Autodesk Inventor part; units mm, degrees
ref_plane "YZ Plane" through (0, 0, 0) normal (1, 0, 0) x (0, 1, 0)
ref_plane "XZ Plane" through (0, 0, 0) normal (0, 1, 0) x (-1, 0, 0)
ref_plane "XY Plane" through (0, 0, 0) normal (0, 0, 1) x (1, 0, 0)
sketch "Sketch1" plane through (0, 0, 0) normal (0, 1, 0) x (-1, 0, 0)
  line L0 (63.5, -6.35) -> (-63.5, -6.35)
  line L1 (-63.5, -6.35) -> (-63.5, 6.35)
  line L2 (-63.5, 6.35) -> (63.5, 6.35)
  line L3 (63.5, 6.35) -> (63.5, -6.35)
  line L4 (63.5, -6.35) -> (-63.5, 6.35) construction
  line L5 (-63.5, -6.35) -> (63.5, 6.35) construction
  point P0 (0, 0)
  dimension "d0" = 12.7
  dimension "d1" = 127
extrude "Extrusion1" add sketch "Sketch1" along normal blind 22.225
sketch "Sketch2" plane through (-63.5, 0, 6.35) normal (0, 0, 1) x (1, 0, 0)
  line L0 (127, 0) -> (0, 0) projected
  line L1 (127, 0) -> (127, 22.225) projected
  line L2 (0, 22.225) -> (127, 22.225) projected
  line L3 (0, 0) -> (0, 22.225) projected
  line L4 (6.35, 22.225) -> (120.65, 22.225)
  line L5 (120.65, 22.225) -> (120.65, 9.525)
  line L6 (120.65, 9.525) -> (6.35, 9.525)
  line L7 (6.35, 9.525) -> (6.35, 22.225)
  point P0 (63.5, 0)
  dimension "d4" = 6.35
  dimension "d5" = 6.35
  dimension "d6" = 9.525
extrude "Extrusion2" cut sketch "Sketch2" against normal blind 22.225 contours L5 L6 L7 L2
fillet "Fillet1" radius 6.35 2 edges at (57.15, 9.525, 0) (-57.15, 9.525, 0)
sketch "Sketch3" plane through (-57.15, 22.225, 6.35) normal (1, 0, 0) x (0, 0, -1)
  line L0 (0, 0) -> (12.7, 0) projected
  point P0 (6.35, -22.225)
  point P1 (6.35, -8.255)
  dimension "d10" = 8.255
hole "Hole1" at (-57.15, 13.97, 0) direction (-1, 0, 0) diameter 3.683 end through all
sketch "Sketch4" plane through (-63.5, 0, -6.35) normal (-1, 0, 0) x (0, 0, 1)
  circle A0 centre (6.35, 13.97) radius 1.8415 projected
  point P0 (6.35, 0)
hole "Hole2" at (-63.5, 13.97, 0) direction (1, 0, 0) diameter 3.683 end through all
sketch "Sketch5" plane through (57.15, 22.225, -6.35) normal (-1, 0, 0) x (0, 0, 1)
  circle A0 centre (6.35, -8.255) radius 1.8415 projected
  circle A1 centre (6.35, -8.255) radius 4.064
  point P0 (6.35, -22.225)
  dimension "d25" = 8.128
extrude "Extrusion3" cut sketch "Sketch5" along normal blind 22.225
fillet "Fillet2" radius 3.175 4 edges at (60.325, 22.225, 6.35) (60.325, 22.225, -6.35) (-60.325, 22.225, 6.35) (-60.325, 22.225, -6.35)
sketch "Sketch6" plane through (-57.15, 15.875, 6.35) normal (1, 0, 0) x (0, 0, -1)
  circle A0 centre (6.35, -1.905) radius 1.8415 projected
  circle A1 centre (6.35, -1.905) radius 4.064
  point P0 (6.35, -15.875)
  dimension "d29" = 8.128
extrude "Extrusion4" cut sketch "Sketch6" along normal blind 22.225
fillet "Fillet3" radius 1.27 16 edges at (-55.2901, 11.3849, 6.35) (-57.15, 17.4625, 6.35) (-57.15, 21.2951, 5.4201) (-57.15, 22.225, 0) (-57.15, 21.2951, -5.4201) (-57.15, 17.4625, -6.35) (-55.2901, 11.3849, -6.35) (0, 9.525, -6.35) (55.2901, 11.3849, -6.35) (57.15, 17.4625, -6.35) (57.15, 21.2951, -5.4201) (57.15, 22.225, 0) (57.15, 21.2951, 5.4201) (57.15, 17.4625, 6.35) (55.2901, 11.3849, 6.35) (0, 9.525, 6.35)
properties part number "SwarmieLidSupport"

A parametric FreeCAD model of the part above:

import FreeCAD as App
import Part
import Sketcher

V = App.Vector
Q = App.Units.Quantity


def edges_at(feature, points):
    """Names of the edges that pass closest to the given points."""
    edges = feature.Shape.Edges
    near = lambda p: min(range(len(edges)), key=lambda i: edges[i].distToShape(Part.Vertex(*p))[0])
    return sorted({f"Edge{near(p) + 1}" for p in points})

doc = App.newDocument("Part")
params = doc.addObject("Spreadsheet::Sheet", "Params")
for row, (alias, value) in enumerate([
    ("sketch1_width", "5 in"),
    ("sketch1_height", "0.5 in"),
    ("pad1_length", "0.875 in"),
    ("sketch2_width", "4.5 in"),
    ("sketch2_height", "0.5 in"),
    ("pocket1_length", "0.875 in"),
    ("fillet_radius", "0.25 in"),
    ("sketch3_diameter", "0.145 in"),
    ("hole_diameter", "0.145 in"),
    ("sketch4_diameter", "0.145 in"),
    ("hole2_diameter", "0.145 in"),
    ("sketch5_diameter", "0.32 in"),
    ("sketch5_diameter2", "0.145 in"),
    ("pocket2_length", "0.875 in"),
    ("fillet2_radius", "0.125 in"),
    ("sketch6_diameter", "0.32 in"),
    ("sketch6_diameter2", "0.145 in"),
    ("pocket3_length", "0.875 in"),
    ("fillet3_radius", "0.05 in"),
], start=1):
    params.set(f"A{row}", alias)
    params.set(f"B{row}", "=" + value)
    params.setAlias(f"B{row}", alias)

body = doc.addObject("PartDesign::Body", "Body")

sketch1 = body.newObject("Sketcher::SketchObject", "Sketch")
sketch1.AttachmentSupport = (doc.getObject("XZ_Plane"), [""])
sketch1.MapMode = "FlatFace"
sketch1.addGeometry(Part.LineSegment(V(63.5, -6.35, 0), V(-63.5, -6.35, 0)), False)
sketch1.addGeometry(Part.LineSegment(V(-63.5, -6.35, 0), V(-63.5, 6.35, 0)), False)
sketch1.addGeometry(Part.LineSegment(V(-63.5, 6.35, 0), V(63.5, 6.35, 0)), False)
sketch1.addGeometry(Part.LineSegment(V(63.5, 6.35, 0), V(63.5, -6.35, 0)), False)
sketch1.addConstraint(Sketcher.Constraint("Coincident", 0, 2, 1, 1))
sketch1.addConstraint(Sketcher.Constraint("Coincident", 1, 2, 2, 1))
sketch1.addConstraint(Sketcher.Constraint("Coincident", 2, 2, 3, 1))
sketch1.addConstraint(Sketcher.Constraint("Coincident", 3, 2, 0, 1))
sketch1.addConstraint(Sketcher.Constraint("Horizontal", 0))
sketch1.addConstraint(Sketcher.Constraint("Vertical", 1))
sketch1.addConstraint(Sketcher.Constraint("Horizontal", 2))
sketch1.addConstraint(Sketcher.Constraint("Vertical", 3))
sketch1.addConstraint(Sketcher.Constraint("Symmetric", 0, 2, 2, 2, -1, 1))
sketch1.addConstraint(Sketcher.Constraint("DistanceX", 0, 2, 0, 1, Q("5 in")))
sketch1.addConstraint(Sketcher.Constraint("DistanceY", 1, 1, 1, 2, Q("0.5 in")))
sketch1.setExpression("Constraints[9]", "Params.sketch1_width")
sketch1.setExpression("Constraints[10]", "Params.sketch1_height")
pad1 = body.newObject("PartDesign::Pad", "Pad")
pad1.Profile = sketch1
pad1.setExpression("Length", "Params.pad1_length")
pad1.Reversed = True

sketch2 = body.newObject("Sketcher::SketchObject", "Sketch001")
sketch2.AttachmentSupport = (doc.getObject("XY_Plane"), [""])
sketch2.MapMode = "FlatFace"
sketch2.AttachmentOffset = App.Placement(V(0, 0, 0.25 * 25.4), App.Rotation())
sketch2.addGeometry(Part.LineSegment(V(57.15, 9.525, 0), V(57.15, 22.225, 0)), False)
sketch2.addGeometry(Part.LineSegment(V(57.15, 22.225, 0), V(-57.15, 22.225, 0)), False)
sketch2.addGeometry(Part.LineSegment(V(-57.15, 22.225, 0), V(-57.15, 9.525, 0)), False)
sketch2.addGeometry(Part.LineSegment(V(-57.15, 9.525, 0), V(57.15, 9.525, 0)), False)
sketch2.addConstraint(Sketcher.Constraint("Coincident", 0, 2, 1, 1))
sketch2.addConstraint(Sketcher.Constraint("Coincident", 1, 2, 2, 1))
sketch2.addConstraint(Sketcher.Constraint("Coincident", 2, 2, 3, 1))
sketch2.addConstraint(Sketcher.Constraint("Coincident", 3, 2, 0, 1))
sketch2.addConstraint(Sketcher.Constraint("Vertical", 0))
sketch2.addConstraint(Sketcher.Constraint("Horizontal", 1))
sketch2.addConstraint(Sketcher.Constraint("Vertical", 2))
sketch2.addConstraint(Sketcher.Constraint("Horizontal", 3))
sketch2.addConstraint(Sketcher.Constraint("DistanceX", 1, 2, 1, 1, Q("4.5 in")))
sketch2.addConstraint(Sketcher.Constraint("DistanceY", 0, 1, 0, 2, Q("0.5 in")))
sketch2.addConstraint(Sketcher.Constraint("DistanceY", -1, 1, 2, 2, Q("0.375 in")))
sketch2.addConstraint(Sketcher.Constraint("DistanceX", -1, 1, 0, 2, Q("2.25 in")))
sketch2.setExpression("Constraints[8]", "Params.sketch2_width")
sketch2.setExpression("Constraints[9]", "Params.sketch2_height")
pocket1 = body.newObject("PartDesign::Pocket", "Pocket")
pocket1.Profile = sketch2
pocket1.setExpression("Length", "Params.pocket1_length")
doc.recompute()

fillet = body.newObject("PartDesign::Fillet", "Fillet")
fillet.Base = (pocket1, edges_at(pocket1, [(57.15, 9.525, 0), (-57.15, 9.525, 0)]))
fillet.setExpression("Radius", "Params.fillet_radius")

sketch3 = body.newObject("Sketcher::SketchObject", "Sketch002")
sketch3.AttachmentSupport = (doc.getObject("YZ_Plane"), [""])
sketch3.MapMode = "FlatFace"
sketch3.AttachmentOffset = App.Placement(V(0, 0, -2.25 * 25.4), App.Rotation())
sketch3.addGeometry(Part.Circle(V(13.97, 0, 0), V(0, 0, 1), 1.8415), False)
sketch3.addConstraint(Sketcher.Constraint("PointOnObject", 0, 3, -1))
sketch3.addConstraint(Sketcher.Constraint("Diameter", 0, Q("0.145 in")))
sketch3.addConstraint(Sketcher.Constraint("DistanceX", -1, 1, 0, 3, Q("0.55 in")))
sketch3.setExpression("Constraints[1]", "Params.sketch3_diameter")
doc.recompute()
hole = body.newObject("PartDesign::Hole", "Hole")
hole.Profile = sketch3
hole.ThreadType = "None"
hole.setExpression("Diameter", "Params.hole_diameter")
hole.DepthType = "ThroughAll"

sketch4 = body.newObject("Sketcher::SketchObject", "Sketch003")
sketch4.AttachmentSupport = (doc.getObject("YZ_Plane"), [""])
sketch4.MapMode = "FlatFace"
sketch4.AttachmentOffset = App.Placement(V(0, 0, -2.5 * 25.4), App.Rotation())
sketch4.addGeometry(Part.Circle(V(13.97, 0, 0), V(0, 0, 1), 1.8415), False)
sketch4.addConstraint(Sketcher.Constraint("PointOnObject", 0, 3, -1))
sketch4.addConstraint(Sketcher.Constraint("Diameter", 0, Q("0.145 in")))
sketch4.addConstraint(Sketcher.Constraint("DistanceX", -1, 1, 0, 3, Q("0.55 in")))
sketch4.setExpression("Constraints[1]", "Params.sketch4_diameter")
doc.recompute()
hole2 = body.newObject("PartDesign::Hole", "Hole001")
hole2.Profile = sketch4
hole2.ThreadType = "None"
hole2.setExpression("Diameter", "Params.hole2_diameter")
hole2.DepthType = "ThroughAll"
hole2.Reversed = True

sketch5 = body.newObject("Sketcher::SketchObject", "Sketch004")
sketch5.AttachmentSupport = (doc.getObject("YZ_Plane"), [""])
sketch5.MapMode = "FlatFace"
sketch5.AttachmentOffset = App.Placement(V(0, 0, 2.25 * 25.4), App.Rotation())
sketch5.addGeometry(Part.Circle(V(13.97, 0, 0), V(0, 0, 1), 4.064), False)
sketch5.addGeometry(Part.Circle(V(13.97, 0, 0), V(0, 0, 1), 1.8415), False)
sketch5.addConstraint(Sketcher.Constraint("Coincident", 1, 3, 0, 3))
sketch5.addConstraint(Sketcher.Constraint("PointOnObject", 0, 3, -1))
sketch5.addConstraint(Sketcher.Constraint("Diameter", 0, Q("0.32 in")))
sketch5.addConstraint(Sketcher.Constraint("Diameter", 1, Q("0.145 in")))
sketch5.addConstraint(Sketcher.Constraint("DistanceX", -1, 1, 0, 3, Q("0.55 in")))
sketch5.setExpression("Constraints[2]", "Params.sketch5_diameter")
sketch5.setExpression("Constraints[3]", "Params.sketch5_diameter2")
pocket2 = body.newObject("PartDesign::Pocket", "Pocket001")
pocket2.Profile = sketch5
pocket2.setExpression("Length", "Params.pocket2_length")
doc.recompute()

fillet2 = body.newObject("PartDesign::Fillet", "Fillet001")
fillet2.Base = (pocket2, edges_at(pocket2, [
    (60.325, 22.225, 6.35),
    (60.325, 22.225, -6.35),
    (-60.325, 22.225, 6.35),
    (-60.325, 22.225, -6.35),
]))
fillet2.setExpression("Radius", "Params.fillet2_radius")

sketch6 = body.newObject("Sketcher::SketchObject", "Sketch005")
sketch6.AttachmentSupport = (doc.getObject("YZ_Plane"), [""])
sketch6.MapMode = "FlatFace"
sketch6.AttachmentOffset = App.Placement(V(0, 0, -2.25 * 25.4), App.Rotation())
sketch6.addGeometry(Part.Circle(V(13.97, 0, 0), V(0, 0, 1), 4.064), False)
sketch6.addGeometry(Part.Circle(V(13.97, 0, 0), V(0, 0, 1), 1.8415), False)
sketch6.addConstraint(Sketcher.Constraint("Coincident", 1, 3, 0, 3))
sketch6.addConstraint(Sketcher.Constraint("PointOnObject", 0, 3, -1))
sketch6.addConstraint(Sketcher.Constraint("Diameter", 0, Q("0.32 in")))
sketch6.addConstraint(Sketcher.Constraint("Diameter", 1, Q("0.145 in")))
sketch6.addConstraint(Sketcher.Constraint("DistanceX", -1, 1, 0, 3, Q("0.55 in")))
sketch6.setExpression("Constraints[2]", "Params.sketch6_diameter")
sketch6.setExpression("Constraints[3]", "Params.sketch6_diameter2")
pocket3 = body.newObject("PartDesign::Pocket", "Pocket002")
pocket3.Profile = sketch6
pocket3.setExpression("Length", "Params.pocket3_length")
pocket3.Reversed = True
doc.recompute()

fillet3 = body.newObject("PartDesign::Fillet", "Fillet002")
fillet3.Base = (pocket3, edges_at(pocket3, [
    (-55.29, 11.385, 6.35),
    (-57.15, 17.462, 6.35),
    (-57.15, 21.295, 5.42),
    (-57.15, 22.225, 0),
    (-57.15, 21.295, -5.42),
    (-57.15, 17.462, -6.35),
    (-55.29, 11.385, -6.35),
    (0, 9.525, -6.35),
    (55.29, 11.385, -6.35),
    (57.15, 17.462, -6.35),
    (57.15, 21.295, -5.42),
    (57.15, 22.225, 0),
    (57.15, 21.295, 5.42),
    (57.15, 17.462, 6.35),
    (55.29, 11.385, 6.35),
    (0, 9.525, 6.35),
]))
fillet3.setExpression("Radius", "Params.fillet3_radius")

doc.recompute()
